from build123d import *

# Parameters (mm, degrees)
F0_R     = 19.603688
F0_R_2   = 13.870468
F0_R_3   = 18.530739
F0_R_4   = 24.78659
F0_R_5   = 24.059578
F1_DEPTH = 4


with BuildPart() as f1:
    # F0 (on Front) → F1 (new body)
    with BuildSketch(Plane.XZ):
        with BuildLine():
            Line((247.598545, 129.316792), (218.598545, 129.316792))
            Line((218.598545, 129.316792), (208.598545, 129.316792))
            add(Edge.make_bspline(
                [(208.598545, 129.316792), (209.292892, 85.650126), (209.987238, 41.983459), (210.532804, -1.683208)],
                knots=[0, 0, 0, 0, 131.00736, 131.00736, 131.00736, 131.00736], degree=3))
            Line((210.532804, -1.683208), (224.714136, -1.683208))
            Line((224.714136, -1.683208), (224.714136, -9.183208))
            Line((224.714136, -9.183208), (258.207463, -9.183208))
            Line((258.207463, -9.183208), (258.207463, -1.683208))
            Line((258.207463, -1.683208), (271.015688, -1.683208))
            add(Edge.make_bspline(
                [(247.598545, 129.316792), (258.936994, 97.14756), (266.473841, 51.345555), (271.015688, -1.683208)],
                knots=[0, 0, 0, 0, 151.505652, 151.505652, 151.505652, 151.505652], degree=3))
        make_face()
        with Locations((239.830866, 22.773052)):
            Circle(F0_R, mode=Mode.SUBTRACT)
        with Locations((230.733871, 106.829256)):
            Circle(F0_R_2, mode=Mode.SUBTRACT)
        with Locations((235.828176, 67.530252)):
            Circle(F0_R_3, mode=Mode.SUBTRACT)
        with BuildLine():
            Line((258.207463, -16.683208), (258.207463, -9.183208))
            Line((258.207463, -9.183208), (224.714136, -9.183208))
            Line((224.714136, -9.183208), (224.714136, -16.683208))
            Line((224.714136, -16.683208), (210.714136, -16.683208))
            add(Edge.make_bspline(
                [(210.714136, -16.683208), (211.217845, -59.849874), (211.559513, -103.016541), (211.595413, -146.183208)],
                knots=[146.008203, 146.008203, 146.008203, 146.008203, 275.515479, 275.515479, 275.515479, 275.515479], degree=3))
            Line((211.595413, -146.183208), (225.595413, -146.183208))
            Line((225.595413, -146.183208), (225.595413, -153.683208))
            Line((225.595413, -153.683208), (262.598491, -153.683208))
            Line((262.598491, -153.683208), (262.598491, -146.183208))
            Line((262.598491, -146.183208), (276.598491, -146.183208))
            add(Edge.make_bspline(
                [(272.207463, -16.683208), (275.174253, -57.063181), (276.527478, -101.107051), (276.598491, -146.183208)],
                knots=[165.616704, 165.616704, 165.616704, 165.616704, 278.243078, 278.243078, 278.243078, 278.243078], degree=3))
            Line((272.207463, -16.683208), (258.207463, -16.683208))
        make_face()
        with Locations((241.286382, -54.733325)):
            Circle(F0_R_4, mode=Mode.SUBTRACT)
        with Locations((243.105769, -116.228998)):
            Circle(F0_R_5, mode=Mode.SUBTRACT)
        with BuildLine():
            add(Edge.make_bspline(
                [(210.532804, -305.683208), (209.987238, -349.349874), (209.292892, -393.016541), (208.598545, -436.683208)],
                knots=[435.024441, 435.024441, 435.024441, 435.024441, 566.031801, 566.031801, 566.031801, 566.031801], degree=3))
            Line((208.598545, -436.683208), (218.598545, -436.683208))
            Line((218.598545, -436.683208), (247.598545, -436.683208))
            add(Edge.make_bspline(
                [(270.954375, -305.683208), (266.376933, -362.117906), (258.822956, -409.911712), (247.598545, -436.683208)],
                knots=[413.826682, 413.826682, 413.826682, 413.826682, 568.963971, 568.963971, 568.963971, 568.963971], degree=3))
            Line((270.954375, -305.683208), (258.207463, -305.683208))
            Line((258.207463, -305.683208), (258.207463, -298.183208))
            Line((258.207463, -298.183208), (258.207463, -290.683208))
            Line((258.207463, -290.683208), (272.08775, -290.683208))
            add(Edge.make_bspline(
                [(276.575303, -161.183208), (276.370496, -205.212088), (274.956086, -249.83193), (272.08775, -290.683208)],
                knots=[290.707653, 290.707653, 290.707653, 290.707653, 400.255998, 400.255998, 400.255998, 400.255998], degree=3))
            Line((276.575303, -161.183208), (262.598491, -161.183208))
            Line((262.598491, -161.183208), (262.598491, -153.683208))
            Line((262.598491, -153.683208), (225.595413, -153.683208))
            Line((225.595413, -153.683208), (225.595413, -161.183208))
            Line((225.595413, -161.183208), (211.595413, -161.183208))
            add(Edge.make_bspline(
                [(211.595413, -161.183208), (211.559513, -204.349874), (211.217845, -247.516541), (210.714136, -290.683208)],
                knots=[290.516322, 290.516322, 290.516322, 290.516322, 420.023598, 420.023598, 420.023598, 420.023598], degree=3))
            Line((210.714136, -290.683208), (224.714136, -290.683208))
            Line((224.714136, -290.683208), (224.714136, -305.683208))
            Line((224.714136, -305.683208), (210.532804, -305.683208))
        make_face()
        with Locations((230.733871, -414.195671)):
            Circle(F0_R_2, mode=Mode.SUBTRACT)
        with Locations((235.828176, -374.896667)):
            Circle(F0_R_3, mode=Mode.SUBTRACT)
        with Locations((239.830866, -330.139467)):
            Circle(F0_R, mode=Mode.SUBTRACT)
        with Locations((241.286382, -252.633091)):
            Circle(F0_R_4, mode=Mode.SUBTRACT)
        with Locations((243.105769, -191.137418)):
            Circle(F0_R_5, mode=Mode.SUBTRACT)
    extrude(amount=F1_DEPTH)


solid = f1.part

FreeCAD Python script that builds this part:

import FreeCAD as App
import Part
import Sketcher
from FreeCAD import Vector
Q = App.Units.Quantity

doc = App.newDocument("Part")
body = doc.addObject("PartDesign::Body", "Body")

# Sketch on XZ plane
sketch1 = body.newObject("Sketcher::SketchObject", "Sketch")
sketch1.AttachmentSupport = (doc.getObject("XZ_Plane"), [""])
sketch1.MapMode = "FlatFace"
sketch1.addGeometry(Part.LineSegment(Vector(247.598545, 129.316792, 0), Vector(208.598545, 129.316792, 0)), False)
sketch1.addGeometry(Part.BSplineCurve([Vector(208.598545, 129.316792, 0), Vector(209.292892, 85.650126, 0), Vector(209.987238, 41.983459, 0), Vector(210.532804, -1.683208, 0)], [4, 4], [0, 131.00736], False, 3, [1, 1, 1, 1], False), False)
sketch1.addGeometry(Part.LineSegment(Vector(210.532804, -1.683208, 0), Vector(224.714136, -1.683208, 0)), False)
sketch1.addGeometry(Part.LineSegment(Vector(224.714136, -1.683208, 0), Vector(224.714136, -16.683208, 0)), False)
sketch1.addGeometry(Part.LineSegment(Vector(224.714136, -16.683208, 0), Vector(210.714136, -16.683208, 0)), False)
sketch1.addGeometry(Part.BSplineCurve([Vector(210.714136, -16.683208, 0), Vector(211.217845, -59.849874, 0), Vector(211.559513, -103.016541, 0), Vector(211.595413, -146.183208, 0)], [4, 4], [146.008203, 275.515479], False, 3, [1, 1, 1, 1], False), False)
sketch1.addGeometry(Part.LineSegment(Vector(211.595413, -146.183208, 0), Vector(225.595413, -146.183208, 0)), False)
sketch1.addGeometry(Part.LineSegment(Vector(225.595413, -146.183208, 0), Vector(225.595413, -161.183208, 0)), False)
sketch1.addGeometry(Part.LineSegment(Vector(225.595413, -161.183208, 0), Vector(211.595413, -161.183208, 0)), False)
sketch1.addGeometry(Part.BSplineCurve([Vector(211.595413, -161.183208, 0), Vector(211.559513, -204.349874, 0), Vector(211.217845, -247.516541, 0), Vector(210.714136, -290.683208, 0)], [4, 4], [290.516322, 420.023598], False, 3, [1, 1, 1, 1], False), False)
sketch1.addGeometry(Part.LineSegment(Vector(210.714136, -290.683208, 0), Vector(224.714136, -290.683208, 0)), False)
sketch1.addGeometry(Part.LineSegment(Vector(224.714136, -290.683208, 0), Vector(224.714136, -305.683208, 0)), False)
sketch1.addGeometry(Part.LineSegment(Vector(224.714136, -305.683208, 0), Vector(210.532804, -305.683208, 0)), False)
sketch1.addGeometry(Part.BSplineCurve([Vector(210.532804, -305.683208, 0), Vector(209.987238, -349.349874, 0), Vector(209.292892, -393.016541, 0), Vector(208.598545, -436.683208, 0)], [4, 4], [435.024441, 566.031801], False, 3, [1, 1, 1, 1], False), False)
sketch1.addGeometry(Part.LineSegment(Vector(208.598545, -436.683208, 0), Vector(247.598545, -436.683208, 0)), False)
sketch1.addGeometry(Part.BSplineCurve([Vector(270.954375, -305.683208, 0), Vector(266.376933, -362.117906, 0), Vector(258.822956, -409.911712, 0), Vector(247.598545, -436.683208, 0)], [4, 4], [413.826682, 568.963971], False, 3, [1, 1, 1, 1], False), False)
sketch1.addGeometry(Part.LineSegment(Vector(270.954375, -305.683208, 0), Vector(258.207463, -305.683208, 0)), False)
sketch1.addGeometry(Part.LineSegment(Vector(258.207463, -305.683208, 0), Vector(258.207463, -290.683208, 0)), False)
sketch1.addGeometry(Part.LineSegment(Vector(258.207463, -290.683208, 0), Vector(272.08775, -290.683208, 0)), False)
sketch1.addGeometry(Part.BSplineCurve([Vector(276.575303, -161.183208, 0), Vector(276.370496, -205.212088, 0), Vector(274.956086, -249.83193, 0), Vector(272.08775, -290.683208, 0)], [4, 4], [290.707653, 400.255998], False, 3, [1, 1, 1, 1], False), False)
sketch1.addGeometry(Part.LineSegment(Vector(276.575303, -161.183208, 0), Vector(262.598491, -161.183208, 0)), False)
sketch1.addGeometry(Part.LineSegment(Vector(262.598491, -161.183208, 0), Vector(262.598491, -146.183208, 0)), False)
sketch1.addGeometry(Part.LineSegment(Vector(262.598491, -146.183208, 0), Vector(276.598491, -146.183208, 0)), False)
sketch1.addGeometry(Part.BSplineCurve([Vector(272.207463, -16.683208, 0), Vector(275.174253, -57.063181, 0), Vector(276.527478, -101.107051, 0), Vector(276.598491, -146.183208, 0)], [4, 4], [165.616704, 278.243078], False, 3, [1, 1, 1, 1], False), False)
sketch1.addGeometry(Part.LineSegment(Vector(272.207463, -16.683208, 0), Vector(258.207463, -16.683208, 0)), False)
sketch1.addGeometry(Part.LineSegment(Vector(258.207463, -16.683208, 0), Vector(258.207463, -1.683208, 0)), False)
sketch1.addGeometry(Part.LineSegment(Vector(258.207463, -1.683208, 0), Vector(271.015688, -1.683208, 0)), False)
sketch1.addGeometry(Part.BSplineCurve([Vector(247.598545, 129.316792, 0), Vector(258.936994, 97.14756, 0), Vector(266.473841, 51.345555, 0), Vector(271.015688, -1.683208, 0)], [4, 4], [0, 151.505652], False, 3, [1, 1, 1, 1], False), False)
sketch1.addGeometry(Part.Circle(Vector(230.733871, -414.195671, 0), Vector(0, 0, 1), 13.870468), False)
sketch1.addGeometry(Part.Circle(Vector(235.828176, -374.896667, 0), Vector(0, 0, 1), 18.530739), False)
sketch1.addGeometry(Part.Circle(Vector(239.830866, -330.139467, 0), Vector(0, 0, 1), 19.603688), False)
sketch1.addGeometry(Part.Circle(Vector(241.286382, -252.633091, 0), Vector(0, 0, 1), 24.78659), False)
sketch1.addGeometry(Part.Circle(Vector(243.105769, -191.137418, 0), Vector(0, 0, 1), 24.059578), False)
sketch1.addGeometry(Part.Circle(Vector(241.286382, -54.733325, 0), Vector(0, 0, 1), 24.78659), False)
sketch1.addGeometry(Part.Circle(Vector(239.830866, 22.773052, 0), Vector(0, 0, 1), 19.603688), False)
sketch1.addGeometry(Part.Circle(Vector(230.733871, 106.829256, 0), Vector(0, 0, 1), 13.870468), False)
sketch1.addGeometry(Part.Circle(Vector(235.828176, 67.530252, 0), Vector(0, 0, 1), 18.530739), False)
sketch1.addGeometry(Part.Circle(Vector(243.105769, -116.228998, 0), Vector(0, 0, 1), 24.059578), False)
sketch1.addConstraint(Sketcher.Constraint("Block", 1))
sketch1.addConstraint(Sketcher.Constraint("Block", 5))
sketch1.addConstraint(Sketcher.Constraint("Block", 9))
sketch1.addConstraint(Sketcher.Constraint("Block", 13))
sketch1.addConstraint(Sketcher.Constraint("Block", 15))
sketch1.addConstraint(Sketcher.Constraint("Block", 19))
sketch1.addConstraint(Sketcher.Constraint("Block", 23))
sketch1.addConstraint(Sketcher.Constraint("Block", 27))
sketch1.addConstraint(Sketcher.Constraint("Coincident", 0, 2, 1, 1))
sketch1.addConstraint(Sketcher.Constraint("Coincident", 1, 2, 2, 1))
sketch1.addConstraint(Sketcher.Constraint("Coincident", 2, 2, 3, 1))
sketch1.addConstraint(Sketcher.Constraint("Coincident", 3, 2, 4, 1))
sketch1.addConstraint(Sketcher.Constraint("Coincident", 4, 2, 5, 1))
sketch1.addConstraint(Sketcher.Constraint("Coincident", 5, 2, 6, 1))
sketch1.addConstraint(Sketcher.Constraint("Coincident", 6, 2, 7, 1))
sketch1.addConstraint(Sketcher.Constraint("Coincident", 7, 2, 8, 1))
sketch1.addConstraint(Sketcher.Constraint("Coincident", 8, 2, 9, 1))
sketch1.addConstraint(Sketcher.Constraint("Coincident", 9, 2, 10, 1))
sketch1.addConstraint(Sketcher.Constraint("Coincident", 10, 2, 11, 1))
sketch1.addConstraint(Sketcher.Constraint("Coincident", 11, 2, 12, 1))
sketch1.addConstraint(Sketcher.Constraint("Coincident", 12, 2, 13, 1))
sketch1.addConstraint(Sketcher.Constraint("Coincident", 13, 2, 14, 1))
sketch1.addConstraint(Sketcher.Constraint("Coincident", 14, 2, 15, 2))
sketch1.addConstraint(Sketcher.Constraint("Coincident", 15, 1, 16, 1))
sketch1.addConstraint(Sketcher.Constraint("Coincident", 16, 2, 17, 1))
sketch1.addConstraint(Sketcher.Constraint("Coincident", 17, 2, 18, 1))
sketch1.addConstraint(Sketcher.Constraint("Coincident", 18, 2, 19, 2))
sketch1.addConstraint(Sketcher.Constraint("Coincident", 19, 1, 20, 1))
sketch1.addConstraint(Sketcher.Constraint("Coincident", 20, 2, 21, 1))
sketch1.addConstraint(Sketcher.Constraint("Coincident", 21, 2, 22, 1))
sketch1.addConstraint(Sketcher.Constraint("Coincident", 22, 2, 23, 2))
sketch1.addConstraint(Sketcher.Constraint("Coincident", 23, 1, 24, 1))
sketch1.addConstraint(Sketcher.Constraint("Coincident", 24, 2, 25, 1))
sketch1.addConstraint(Sketcher.Constraint("Coincident", 25, 2, 26, 1))
sketch1.addConstraint(Sketcher.Constraint("Coincident", 26, 2, 27, 2))
sketch1.addConstraint(Sketcher.Constraint("Coincident", 27, 1, 0, 1))
sketch1.addConstraint(Sketcher.Constraint("Horizontal", 2))
sketch1.addConstraint(Sketcher.Constraint("Vertical", 3))
sketch1.addConstraint(Sketcher.Constraint("Horizontal", 4))
sketch1.addConstraint(Sketcher.Constraint("Horizontal", 6))
sketch1.addConstraint(Sketcher.Constraint("Vertical", 7))
sketch1.addConstraint(Sketcher.Constraint("Horizontal", 8))
sketch1.addConstraint(Sketcher.Constraint("Horizontal", 10))
sketch1.addConstraint(Sketcher.Constraint("Vertical", 11))
sketch1.addConstraint(Sketcher.Constraint("Horizontal", 12))
sketch1.addConstraint(Sketcher.Constraint("Horizontal", 16))
sketch1.addConstraint(Sketcher.Constraint("Vertical", 17))
sketch1.addConstraint(Sketcher.Constraint("Horizontal", 18))
sketch1.addConstraint(Sketcher.Constraint("Horizontal", 20))
sketch1.addConstraint(Sketcher.Constraint("Vertical", 21))
sketch1.addConstraint(Sketcher.Constraint("Horizontal", 22))
sketch1.addConstraint(Sketcher.Constraint("Horizontal", 24))
sketch1.addConstraint(Sketcher.Constraint("Vertical", 25))
sketch1.addConstraint(Sketcher.Constraint("Horizontal", 26))
sketch1.addConstraint(Sketcher.Constraint("Equal", 31, 33))
sketch1.addConstraint(Sketcher.Constraint("Equal", 30, 34))
sketch1.addConstraint(Sketcher.Constraint("Equal", 28, 35))
sketch1.addConstraint(Sketcher.Constraint("Equal", 29, 36))
sketch1.addConstraint(Sketcher.Constraint("Equal", 32, 37))
sketch1.addConstraint(Sketcher.Constraint("Vertical", 31, 3, 33, 3))
sketch1.addConstraint(Sketcher.Constraint("Vertical", 30, 3, 34, 3))
sketch1.addConstraint(Sketcher.Constraint("Vertical", 28, 3, 35, 3))
sketch1.addConstraint(Sketcher.Constraint("Vertical", 29, 3, 36, 3))
sketch1.addConstraint(Sketcher.Constraint("Vertical", 32, 3, 37, 3))
sketch1.addConstraint(Sketcher.Constraint("Vertical", 3, 2, 10, 2))
sketch1.addConstraint(Sketcher.Constraint("Vertical", 17, 2, 24, 2))
sketch1.addConstraint(Sketcher.Constraint("Equal", 4, 6))
sketch1.addConstraint(Sketcher.Constraint("Equal", 10, 22))
sketch1.addConstraint(Sketcher.Constraint("Equal", 22, 24))
sketch1.addConstraint(Sketcher.Constraint("DistanceX", 4, 2, 4, 1, Q("14 mm")))
sketch1.addConstraint(Sketcher.Constraint("Diameter", 31, Q("49.57318 mm")))
sketch1.addConstraint(Sketcher.Constraint("Diameter", 28, Q("27.740936 mm")))
sketch1.addConstraint(Sketcher.Constraint("Diameter", 29, Q("37.061478 mm")))
sketch1.addConstraint(Sketcher.Constraint("Diameter", 30, Q("39.207376 mm")))
sketch1.addConstraint(Sketcher.Constraint("Diameter", 32, Q("48.119156 mm")))
sketch1.addConstraint(Sketcher.Constraint("DistanceY", 37, 3, -1, 1, Q("116.228998 mm")))
sketch1.addConstraint(Sketcher.Constraint("DistanceY", 29, 3, 30, 3, Q("44.7572 mm")))
sketch1.addConstraint(Sketcher.Constraint("DistanceX", 28, 3, 32, 3, Q("12.371898 mm")))
sketch1.addConstraint(Sketcher.Constraint("DistanceY", 34, 3, 36, 3, Q("44.7572 mm")))
sketch1.addConstraint(Sketcher.Constraint("DistanceX", -1, 1, 28, 3, Q("230.733871 mm")))
sketch1.addConstraint(Sketcher.Constraint("DistanceY", 28, 3, -1, 1, Q("414.195671 mm")))
sketch1.addConstraint(Sketcher.Constraint("DistanceX", -1, 1, 31, 3, Q("241.286382 mm")))
sketch1.addConstraint(Sketcher.Constraint("DistanceY", 31, 3, -1, 1, Q("252.633091 mm")))
sketch1.addConstraint(Sketcher.Constraint("DistanceY", 32, 3, -1, 1, Q("191.137418 mm")))
sketch1.addConstraint(Sketcher.Constraint("DistanceY", -1, 1, 34, 3, Q("22.773052 mm")))
sketch1.addConstraint(Sketcher.Constraint("DistanceX", 29, 3, 30, 3, Q("4.00269 mm")))
sketch1.addConstraint(Sketcher.Constraint("DistanceY", 30, 3, 32, 3, Q("139.002049 mm")))
sketch1.addConstraint(Sketcher.Constraint("DistanceY", 29, 3, 33, 3, Q("320.163342 mm")))
sketch1.addConstraint(Sketcher.Constraint("DistanceY", 33, 3, 35, 3, Q("161.562581 mm")))
sketch1.addConstraint(Sketcher.Constraint("DistanceX", 0, 2, 36, 3, Q("27.229631 mm")))
pad1 = body.newObject("PartDesign::Pad", "Pad")
pad1.Profile = sketch1
pad1.Length = 4

doc.recompute()
